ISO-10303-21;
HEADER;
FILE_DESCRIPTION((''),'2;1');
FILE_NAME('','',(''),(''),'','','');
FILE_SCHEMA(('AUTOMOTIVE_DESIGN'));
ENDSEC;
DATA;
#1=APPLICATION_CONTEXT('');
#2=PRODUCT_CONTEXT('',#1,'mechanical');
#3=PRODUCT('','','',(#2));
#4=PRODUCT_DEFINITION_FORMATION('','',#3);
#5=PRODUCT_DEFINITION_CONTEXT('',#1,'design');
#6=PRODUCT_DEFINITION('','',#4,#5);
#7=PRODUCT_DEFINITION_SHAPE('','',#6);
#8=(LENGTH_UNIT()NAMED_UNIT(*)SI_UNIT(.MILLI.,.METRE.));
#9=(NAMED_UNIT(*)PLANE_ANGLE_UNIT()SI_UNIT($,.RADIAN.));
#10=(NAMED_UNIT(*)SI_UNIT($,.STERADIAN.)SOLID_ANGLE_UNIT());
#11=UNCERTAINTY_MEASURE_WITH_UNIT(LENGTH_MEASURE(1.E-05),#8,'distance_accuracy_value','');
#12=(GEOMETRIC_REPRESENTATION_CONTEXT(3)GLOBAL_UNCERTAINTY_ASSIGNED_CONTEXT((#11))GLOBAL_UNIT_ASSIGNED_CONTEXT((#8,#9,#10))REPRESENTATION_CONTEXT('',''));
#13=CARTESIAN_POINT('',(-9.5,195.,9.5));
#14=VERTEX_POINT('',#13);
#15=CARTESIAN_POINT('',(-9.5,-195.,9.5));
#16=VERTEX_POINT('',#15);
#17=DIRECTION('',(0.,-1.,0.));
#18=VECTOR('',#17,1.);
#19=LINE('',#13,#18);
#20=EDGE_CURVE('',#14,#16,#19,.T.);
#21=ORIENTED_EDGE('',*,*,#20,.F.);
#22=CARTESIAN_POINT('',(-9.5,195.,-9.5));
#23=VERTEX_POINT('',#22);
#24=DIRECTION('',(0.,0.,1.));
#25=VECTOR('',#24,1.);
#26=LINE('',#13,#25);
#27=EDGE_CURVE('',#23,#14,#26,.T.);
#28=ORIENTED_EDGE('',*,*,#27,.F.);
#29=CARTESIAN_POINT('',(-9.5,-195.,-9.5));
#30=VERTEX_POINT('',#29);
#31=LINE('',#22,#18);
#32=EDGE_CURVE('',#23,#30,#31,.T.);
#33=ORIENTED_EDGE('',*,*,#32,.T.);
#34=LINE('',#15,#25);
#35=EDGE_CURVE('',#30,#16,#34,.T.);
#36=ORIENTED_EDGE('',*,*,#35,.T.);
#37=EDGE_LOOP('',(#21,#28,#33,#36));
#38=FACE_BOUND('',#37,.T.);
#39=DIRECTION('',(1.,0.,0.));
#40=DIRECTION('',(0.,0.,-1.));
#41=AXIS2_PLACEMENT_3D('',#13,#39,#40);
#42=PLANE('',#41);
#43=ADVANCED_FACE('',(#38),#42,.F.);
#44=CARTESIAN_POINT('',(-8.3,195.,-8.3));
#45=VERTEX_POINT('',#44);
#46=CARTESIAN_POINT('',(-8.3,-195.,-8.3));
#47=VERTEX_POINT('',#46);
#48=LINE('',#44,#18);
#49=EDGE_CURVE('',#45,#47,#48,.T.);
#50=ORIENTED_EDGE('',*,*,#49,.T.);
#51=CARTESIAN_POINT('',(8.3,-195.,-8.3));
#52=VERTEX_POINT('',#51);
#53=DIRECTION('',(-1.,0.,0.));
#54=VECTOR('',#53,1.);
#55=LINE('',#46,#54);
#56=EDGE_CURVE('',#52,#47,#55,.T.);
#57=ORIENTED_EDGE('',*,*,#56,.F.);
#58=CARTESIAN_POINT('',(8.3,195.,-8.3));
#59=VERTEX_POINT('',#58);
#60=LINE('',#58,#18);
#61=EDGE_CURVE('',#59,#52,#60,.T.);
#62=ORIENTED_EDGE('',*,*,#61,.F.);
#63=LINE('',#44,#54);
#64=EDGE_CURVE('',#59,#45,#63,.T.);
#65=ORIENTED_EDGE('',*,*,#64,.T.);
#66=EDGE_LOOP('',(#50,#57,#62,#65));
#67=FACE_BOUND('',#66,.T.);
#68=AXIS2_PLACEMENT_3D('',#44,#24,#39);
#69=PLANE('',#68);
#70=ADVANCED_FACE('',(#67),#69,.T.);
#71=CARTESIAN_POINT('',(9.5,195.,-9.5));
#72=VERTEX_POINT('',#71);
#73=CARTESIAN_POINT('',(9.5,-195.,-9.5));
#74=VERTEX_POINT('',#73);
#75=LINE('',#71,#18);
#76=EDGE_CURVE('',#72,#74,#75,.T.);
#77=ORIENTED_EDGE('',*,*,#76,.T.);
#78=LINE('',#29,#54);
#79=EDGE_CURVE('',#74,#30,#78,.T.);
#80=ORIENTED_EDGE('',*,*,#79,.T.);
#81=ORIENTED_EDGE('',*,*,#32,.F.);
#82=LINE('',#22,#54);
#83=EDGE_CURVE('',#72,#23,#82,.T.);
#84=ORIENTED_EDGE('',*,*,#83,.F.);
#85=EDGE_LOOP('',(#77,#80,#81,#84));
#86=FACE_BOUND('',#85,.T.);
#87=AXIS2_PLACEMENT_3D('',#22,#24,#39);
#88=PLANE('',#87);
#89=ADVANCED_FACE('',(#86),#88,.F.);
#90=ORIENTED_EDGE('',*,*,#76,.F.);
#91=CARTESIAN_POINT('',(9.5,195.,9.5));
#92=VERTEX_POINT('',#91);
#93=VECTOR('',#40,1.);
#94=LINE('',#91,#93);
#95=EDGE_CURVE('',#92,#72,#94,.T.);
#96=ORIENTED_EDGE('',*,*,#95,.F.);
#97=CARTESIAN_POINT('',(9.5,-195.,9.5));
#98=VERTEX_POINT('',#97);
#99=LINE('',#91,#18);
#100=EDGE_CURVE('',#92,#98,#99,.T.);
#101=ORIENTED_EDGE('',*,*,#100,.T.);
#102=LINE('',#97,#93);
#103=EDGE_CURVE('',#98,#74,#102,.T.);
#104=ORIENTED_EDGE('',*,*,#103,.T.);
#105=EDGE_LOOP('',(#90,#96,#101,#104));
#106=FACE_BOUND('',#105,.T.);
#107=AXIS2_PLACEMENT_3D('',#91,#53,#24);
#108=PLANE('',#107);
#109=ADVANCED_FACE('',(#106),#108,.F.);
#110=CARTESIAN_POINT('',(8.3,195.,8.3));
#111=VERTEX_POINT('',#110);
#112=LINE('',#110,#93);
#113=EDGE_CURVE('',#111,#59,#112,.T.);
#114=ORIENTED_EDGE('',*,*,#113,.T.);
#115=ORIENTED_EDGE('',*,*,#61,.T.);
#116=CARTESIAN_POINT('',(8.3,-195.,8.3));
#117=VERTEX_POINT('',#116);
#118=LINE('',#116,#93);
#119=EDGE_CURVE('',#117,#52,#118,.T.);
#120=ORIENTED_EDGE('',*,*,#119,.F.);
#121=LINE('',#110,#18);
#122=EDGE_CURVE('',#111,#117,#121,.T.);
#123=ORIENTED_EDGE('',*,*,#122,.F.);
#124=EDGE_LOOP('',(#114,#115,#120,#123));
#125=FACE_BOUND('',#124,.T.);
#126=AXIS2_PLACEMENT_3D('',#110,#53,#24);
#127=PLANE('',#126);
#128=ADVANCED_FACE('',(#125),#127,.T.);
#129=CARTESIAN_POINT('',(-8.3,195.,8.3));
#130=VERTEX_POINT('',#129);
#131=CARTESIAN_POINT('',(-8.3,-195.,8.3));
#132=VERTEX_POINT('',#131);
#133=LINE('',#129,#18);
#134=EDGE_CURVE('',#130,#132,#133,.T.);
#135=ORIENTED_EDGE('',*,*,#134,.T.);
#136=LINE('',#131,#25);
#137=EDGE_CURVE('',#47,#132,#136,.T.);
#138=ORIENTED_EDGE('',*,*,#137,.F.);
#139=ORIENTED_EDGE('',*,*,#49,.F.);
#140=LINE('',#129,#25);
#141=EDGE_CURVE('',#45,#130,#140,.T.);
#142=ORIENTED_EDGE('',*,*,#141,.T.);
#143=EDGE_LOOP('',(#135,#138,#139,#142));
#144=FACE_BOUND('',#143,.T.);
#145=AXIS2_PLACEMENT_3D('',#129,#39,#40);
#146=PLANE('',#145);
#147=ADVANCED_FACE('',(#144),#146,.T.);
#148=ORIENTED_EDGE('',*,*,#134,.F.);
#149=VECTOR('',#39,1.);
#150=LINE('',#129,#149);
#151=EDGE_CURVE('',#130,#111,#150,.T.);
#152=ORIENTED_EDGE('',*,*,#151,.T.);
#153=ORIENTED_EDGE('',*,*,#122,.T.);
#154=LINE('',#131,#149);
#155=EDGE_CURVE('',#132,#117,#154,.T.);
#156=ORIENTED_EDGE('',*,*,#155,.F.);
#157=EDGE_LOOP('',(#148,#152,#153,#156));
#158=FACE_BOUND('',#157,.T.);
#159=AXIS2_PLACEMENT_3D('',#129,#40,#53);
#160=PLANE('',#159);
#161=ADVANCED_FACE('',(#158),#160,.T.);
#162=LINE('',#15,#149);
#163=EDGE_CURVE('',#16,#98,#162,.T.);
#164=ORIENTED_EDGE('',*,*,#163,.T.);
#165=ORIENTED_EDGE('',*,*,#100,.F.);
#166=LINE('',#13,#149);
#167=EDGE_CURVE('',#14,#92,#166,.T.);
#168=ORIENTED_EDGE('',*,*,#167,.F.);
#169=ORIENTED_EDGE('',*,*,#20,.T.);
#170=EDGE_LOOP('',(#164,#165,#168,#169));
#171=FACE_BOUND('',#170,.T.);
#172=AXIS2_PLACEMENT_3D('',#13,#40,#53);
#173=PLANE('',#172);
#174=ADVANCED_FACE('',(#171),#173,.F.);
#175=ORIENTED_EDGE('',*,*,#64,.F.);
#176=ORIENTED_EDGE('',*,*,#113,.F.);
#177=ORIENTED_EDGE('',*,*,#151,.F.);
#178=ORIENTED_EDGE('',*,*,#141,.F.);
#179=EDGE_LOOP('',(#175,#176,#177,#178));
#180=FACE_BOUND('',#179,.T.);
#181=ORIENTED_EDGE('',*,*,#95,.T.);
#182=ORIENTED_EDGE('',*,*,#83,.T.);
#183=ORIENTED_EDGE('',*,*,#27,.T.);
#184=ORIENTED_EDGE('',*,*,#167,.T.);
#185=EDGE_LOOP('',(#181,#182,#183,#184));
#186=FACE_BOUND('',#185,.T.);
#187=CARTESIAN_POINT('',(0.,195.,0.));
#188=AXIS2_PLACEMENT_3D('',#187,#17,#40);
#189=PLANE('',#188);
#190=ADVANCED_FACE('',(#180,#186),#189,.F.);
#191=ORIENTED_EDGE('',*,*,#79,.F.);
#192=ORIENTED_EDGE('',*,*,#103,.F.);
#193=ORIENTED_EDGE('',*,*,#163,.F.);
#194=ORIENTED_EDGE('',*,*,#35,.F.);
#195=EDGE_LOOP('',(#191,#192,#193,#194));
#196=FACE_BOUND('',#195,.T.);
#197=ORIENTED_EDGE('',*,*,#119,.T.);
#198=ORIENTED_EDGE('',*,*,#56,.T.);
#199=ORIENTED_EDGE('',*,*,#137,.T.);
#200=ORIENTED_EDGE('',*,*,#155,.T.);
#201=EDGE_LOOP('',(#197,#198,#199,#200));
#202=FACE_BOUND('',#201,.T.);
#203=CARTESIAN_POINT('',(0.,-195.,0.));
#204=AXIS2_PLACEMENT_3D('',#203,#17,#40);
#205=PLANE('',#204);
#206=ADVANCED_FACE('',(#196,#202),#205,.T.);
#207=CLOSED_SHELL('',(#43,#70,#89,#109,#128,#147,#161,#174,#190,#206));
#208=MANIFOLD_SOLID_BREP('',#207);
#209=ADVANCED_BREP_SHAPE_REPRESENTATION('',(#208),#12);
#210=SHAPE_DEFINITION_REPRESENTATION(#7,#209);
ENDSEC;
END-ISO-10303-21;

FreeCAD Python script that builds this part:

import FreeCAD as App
import Part
import Sketcher
from FreeCAD import Vector
Q = App.Units.Quantity


def add_polygon(sketch, points):
    """Adds a closed chain of lines whose ends are joined by coincident constraints."""
    first, n = sketch.GeometryCount, len(points)
    for a, b in zip(points, points[1:] + points[:1]):
        sketch.addGeometry(Part.LineSegment(App.Vector(*a, 0), App.Vector(*b, 0)), False)
    for i in range(n):
        sketch.addConstraint(Sketcher.Constraint("Coincident", first + i, 2, first + (i + 1) % n, 1))

doc = App.newDocument("Part")
body = doc.addObject("PartDesign::Body", "Body")

# Sketch on XZ plane
sketch1 = body.newObject("Sketcher::SketchObject", "Sketch")
sketch1.AttachmentSupport = (doc.getObject("XZ_Plane"), [""])
sketch1.MapMode = "FlatFace"
add_polygon(sketch1, [(-9.5, -9.5), (-9.5, 9.5), (9.5, 9.5), (9.5, -9.5)])  # lines 0-3
add_polygon(sketch1, [(8.3, 8.3), (-8.3, 8.3), (-8.3, -8.3), (8.3, -8.3)])  # lines 4-7
sketch1.addConstraint([
    Sketcher.Constraint("Vertical", 0),
    Sketcher.Constraint("Horizontal", 1),
    Sketcher.Constraint("Vertical", 2),
    Sketcher.Constraint("Horizontal", 3),
    Sketcher.Constraint("Horizontal", 4),
    Sketcher.Constraint("Vertical", 5),
    Sketcher.Constraint("Horizontal", 6),
    Sketcher.Constraint("Vertical", 7),
    Sketcher.Constraint("Symmetric", 0, 2, 2, 2, -1, 1),
    Sketcher.Constraint("Symmetric", 4, 2, 6, 2, -1, 1),
    Sketcher.Constraint("Equal", 3, 0),
    Sketcher.Constraint("Equal", 6, 5),
    Sketcher.Constraint("DistanceX", 1, 1, 1, 2, Q("19 mm")),
    Sketcher.Constraint("DistanceX", 4, 2, 4, 1, Q("16.6 mm")),
])
pad1 = body.newObject("PartDesign::Pad", "Pad")
pad1.Profile = sketch1
pad1.Length = 390
pad1.Midplane = True

doc.recompute()
